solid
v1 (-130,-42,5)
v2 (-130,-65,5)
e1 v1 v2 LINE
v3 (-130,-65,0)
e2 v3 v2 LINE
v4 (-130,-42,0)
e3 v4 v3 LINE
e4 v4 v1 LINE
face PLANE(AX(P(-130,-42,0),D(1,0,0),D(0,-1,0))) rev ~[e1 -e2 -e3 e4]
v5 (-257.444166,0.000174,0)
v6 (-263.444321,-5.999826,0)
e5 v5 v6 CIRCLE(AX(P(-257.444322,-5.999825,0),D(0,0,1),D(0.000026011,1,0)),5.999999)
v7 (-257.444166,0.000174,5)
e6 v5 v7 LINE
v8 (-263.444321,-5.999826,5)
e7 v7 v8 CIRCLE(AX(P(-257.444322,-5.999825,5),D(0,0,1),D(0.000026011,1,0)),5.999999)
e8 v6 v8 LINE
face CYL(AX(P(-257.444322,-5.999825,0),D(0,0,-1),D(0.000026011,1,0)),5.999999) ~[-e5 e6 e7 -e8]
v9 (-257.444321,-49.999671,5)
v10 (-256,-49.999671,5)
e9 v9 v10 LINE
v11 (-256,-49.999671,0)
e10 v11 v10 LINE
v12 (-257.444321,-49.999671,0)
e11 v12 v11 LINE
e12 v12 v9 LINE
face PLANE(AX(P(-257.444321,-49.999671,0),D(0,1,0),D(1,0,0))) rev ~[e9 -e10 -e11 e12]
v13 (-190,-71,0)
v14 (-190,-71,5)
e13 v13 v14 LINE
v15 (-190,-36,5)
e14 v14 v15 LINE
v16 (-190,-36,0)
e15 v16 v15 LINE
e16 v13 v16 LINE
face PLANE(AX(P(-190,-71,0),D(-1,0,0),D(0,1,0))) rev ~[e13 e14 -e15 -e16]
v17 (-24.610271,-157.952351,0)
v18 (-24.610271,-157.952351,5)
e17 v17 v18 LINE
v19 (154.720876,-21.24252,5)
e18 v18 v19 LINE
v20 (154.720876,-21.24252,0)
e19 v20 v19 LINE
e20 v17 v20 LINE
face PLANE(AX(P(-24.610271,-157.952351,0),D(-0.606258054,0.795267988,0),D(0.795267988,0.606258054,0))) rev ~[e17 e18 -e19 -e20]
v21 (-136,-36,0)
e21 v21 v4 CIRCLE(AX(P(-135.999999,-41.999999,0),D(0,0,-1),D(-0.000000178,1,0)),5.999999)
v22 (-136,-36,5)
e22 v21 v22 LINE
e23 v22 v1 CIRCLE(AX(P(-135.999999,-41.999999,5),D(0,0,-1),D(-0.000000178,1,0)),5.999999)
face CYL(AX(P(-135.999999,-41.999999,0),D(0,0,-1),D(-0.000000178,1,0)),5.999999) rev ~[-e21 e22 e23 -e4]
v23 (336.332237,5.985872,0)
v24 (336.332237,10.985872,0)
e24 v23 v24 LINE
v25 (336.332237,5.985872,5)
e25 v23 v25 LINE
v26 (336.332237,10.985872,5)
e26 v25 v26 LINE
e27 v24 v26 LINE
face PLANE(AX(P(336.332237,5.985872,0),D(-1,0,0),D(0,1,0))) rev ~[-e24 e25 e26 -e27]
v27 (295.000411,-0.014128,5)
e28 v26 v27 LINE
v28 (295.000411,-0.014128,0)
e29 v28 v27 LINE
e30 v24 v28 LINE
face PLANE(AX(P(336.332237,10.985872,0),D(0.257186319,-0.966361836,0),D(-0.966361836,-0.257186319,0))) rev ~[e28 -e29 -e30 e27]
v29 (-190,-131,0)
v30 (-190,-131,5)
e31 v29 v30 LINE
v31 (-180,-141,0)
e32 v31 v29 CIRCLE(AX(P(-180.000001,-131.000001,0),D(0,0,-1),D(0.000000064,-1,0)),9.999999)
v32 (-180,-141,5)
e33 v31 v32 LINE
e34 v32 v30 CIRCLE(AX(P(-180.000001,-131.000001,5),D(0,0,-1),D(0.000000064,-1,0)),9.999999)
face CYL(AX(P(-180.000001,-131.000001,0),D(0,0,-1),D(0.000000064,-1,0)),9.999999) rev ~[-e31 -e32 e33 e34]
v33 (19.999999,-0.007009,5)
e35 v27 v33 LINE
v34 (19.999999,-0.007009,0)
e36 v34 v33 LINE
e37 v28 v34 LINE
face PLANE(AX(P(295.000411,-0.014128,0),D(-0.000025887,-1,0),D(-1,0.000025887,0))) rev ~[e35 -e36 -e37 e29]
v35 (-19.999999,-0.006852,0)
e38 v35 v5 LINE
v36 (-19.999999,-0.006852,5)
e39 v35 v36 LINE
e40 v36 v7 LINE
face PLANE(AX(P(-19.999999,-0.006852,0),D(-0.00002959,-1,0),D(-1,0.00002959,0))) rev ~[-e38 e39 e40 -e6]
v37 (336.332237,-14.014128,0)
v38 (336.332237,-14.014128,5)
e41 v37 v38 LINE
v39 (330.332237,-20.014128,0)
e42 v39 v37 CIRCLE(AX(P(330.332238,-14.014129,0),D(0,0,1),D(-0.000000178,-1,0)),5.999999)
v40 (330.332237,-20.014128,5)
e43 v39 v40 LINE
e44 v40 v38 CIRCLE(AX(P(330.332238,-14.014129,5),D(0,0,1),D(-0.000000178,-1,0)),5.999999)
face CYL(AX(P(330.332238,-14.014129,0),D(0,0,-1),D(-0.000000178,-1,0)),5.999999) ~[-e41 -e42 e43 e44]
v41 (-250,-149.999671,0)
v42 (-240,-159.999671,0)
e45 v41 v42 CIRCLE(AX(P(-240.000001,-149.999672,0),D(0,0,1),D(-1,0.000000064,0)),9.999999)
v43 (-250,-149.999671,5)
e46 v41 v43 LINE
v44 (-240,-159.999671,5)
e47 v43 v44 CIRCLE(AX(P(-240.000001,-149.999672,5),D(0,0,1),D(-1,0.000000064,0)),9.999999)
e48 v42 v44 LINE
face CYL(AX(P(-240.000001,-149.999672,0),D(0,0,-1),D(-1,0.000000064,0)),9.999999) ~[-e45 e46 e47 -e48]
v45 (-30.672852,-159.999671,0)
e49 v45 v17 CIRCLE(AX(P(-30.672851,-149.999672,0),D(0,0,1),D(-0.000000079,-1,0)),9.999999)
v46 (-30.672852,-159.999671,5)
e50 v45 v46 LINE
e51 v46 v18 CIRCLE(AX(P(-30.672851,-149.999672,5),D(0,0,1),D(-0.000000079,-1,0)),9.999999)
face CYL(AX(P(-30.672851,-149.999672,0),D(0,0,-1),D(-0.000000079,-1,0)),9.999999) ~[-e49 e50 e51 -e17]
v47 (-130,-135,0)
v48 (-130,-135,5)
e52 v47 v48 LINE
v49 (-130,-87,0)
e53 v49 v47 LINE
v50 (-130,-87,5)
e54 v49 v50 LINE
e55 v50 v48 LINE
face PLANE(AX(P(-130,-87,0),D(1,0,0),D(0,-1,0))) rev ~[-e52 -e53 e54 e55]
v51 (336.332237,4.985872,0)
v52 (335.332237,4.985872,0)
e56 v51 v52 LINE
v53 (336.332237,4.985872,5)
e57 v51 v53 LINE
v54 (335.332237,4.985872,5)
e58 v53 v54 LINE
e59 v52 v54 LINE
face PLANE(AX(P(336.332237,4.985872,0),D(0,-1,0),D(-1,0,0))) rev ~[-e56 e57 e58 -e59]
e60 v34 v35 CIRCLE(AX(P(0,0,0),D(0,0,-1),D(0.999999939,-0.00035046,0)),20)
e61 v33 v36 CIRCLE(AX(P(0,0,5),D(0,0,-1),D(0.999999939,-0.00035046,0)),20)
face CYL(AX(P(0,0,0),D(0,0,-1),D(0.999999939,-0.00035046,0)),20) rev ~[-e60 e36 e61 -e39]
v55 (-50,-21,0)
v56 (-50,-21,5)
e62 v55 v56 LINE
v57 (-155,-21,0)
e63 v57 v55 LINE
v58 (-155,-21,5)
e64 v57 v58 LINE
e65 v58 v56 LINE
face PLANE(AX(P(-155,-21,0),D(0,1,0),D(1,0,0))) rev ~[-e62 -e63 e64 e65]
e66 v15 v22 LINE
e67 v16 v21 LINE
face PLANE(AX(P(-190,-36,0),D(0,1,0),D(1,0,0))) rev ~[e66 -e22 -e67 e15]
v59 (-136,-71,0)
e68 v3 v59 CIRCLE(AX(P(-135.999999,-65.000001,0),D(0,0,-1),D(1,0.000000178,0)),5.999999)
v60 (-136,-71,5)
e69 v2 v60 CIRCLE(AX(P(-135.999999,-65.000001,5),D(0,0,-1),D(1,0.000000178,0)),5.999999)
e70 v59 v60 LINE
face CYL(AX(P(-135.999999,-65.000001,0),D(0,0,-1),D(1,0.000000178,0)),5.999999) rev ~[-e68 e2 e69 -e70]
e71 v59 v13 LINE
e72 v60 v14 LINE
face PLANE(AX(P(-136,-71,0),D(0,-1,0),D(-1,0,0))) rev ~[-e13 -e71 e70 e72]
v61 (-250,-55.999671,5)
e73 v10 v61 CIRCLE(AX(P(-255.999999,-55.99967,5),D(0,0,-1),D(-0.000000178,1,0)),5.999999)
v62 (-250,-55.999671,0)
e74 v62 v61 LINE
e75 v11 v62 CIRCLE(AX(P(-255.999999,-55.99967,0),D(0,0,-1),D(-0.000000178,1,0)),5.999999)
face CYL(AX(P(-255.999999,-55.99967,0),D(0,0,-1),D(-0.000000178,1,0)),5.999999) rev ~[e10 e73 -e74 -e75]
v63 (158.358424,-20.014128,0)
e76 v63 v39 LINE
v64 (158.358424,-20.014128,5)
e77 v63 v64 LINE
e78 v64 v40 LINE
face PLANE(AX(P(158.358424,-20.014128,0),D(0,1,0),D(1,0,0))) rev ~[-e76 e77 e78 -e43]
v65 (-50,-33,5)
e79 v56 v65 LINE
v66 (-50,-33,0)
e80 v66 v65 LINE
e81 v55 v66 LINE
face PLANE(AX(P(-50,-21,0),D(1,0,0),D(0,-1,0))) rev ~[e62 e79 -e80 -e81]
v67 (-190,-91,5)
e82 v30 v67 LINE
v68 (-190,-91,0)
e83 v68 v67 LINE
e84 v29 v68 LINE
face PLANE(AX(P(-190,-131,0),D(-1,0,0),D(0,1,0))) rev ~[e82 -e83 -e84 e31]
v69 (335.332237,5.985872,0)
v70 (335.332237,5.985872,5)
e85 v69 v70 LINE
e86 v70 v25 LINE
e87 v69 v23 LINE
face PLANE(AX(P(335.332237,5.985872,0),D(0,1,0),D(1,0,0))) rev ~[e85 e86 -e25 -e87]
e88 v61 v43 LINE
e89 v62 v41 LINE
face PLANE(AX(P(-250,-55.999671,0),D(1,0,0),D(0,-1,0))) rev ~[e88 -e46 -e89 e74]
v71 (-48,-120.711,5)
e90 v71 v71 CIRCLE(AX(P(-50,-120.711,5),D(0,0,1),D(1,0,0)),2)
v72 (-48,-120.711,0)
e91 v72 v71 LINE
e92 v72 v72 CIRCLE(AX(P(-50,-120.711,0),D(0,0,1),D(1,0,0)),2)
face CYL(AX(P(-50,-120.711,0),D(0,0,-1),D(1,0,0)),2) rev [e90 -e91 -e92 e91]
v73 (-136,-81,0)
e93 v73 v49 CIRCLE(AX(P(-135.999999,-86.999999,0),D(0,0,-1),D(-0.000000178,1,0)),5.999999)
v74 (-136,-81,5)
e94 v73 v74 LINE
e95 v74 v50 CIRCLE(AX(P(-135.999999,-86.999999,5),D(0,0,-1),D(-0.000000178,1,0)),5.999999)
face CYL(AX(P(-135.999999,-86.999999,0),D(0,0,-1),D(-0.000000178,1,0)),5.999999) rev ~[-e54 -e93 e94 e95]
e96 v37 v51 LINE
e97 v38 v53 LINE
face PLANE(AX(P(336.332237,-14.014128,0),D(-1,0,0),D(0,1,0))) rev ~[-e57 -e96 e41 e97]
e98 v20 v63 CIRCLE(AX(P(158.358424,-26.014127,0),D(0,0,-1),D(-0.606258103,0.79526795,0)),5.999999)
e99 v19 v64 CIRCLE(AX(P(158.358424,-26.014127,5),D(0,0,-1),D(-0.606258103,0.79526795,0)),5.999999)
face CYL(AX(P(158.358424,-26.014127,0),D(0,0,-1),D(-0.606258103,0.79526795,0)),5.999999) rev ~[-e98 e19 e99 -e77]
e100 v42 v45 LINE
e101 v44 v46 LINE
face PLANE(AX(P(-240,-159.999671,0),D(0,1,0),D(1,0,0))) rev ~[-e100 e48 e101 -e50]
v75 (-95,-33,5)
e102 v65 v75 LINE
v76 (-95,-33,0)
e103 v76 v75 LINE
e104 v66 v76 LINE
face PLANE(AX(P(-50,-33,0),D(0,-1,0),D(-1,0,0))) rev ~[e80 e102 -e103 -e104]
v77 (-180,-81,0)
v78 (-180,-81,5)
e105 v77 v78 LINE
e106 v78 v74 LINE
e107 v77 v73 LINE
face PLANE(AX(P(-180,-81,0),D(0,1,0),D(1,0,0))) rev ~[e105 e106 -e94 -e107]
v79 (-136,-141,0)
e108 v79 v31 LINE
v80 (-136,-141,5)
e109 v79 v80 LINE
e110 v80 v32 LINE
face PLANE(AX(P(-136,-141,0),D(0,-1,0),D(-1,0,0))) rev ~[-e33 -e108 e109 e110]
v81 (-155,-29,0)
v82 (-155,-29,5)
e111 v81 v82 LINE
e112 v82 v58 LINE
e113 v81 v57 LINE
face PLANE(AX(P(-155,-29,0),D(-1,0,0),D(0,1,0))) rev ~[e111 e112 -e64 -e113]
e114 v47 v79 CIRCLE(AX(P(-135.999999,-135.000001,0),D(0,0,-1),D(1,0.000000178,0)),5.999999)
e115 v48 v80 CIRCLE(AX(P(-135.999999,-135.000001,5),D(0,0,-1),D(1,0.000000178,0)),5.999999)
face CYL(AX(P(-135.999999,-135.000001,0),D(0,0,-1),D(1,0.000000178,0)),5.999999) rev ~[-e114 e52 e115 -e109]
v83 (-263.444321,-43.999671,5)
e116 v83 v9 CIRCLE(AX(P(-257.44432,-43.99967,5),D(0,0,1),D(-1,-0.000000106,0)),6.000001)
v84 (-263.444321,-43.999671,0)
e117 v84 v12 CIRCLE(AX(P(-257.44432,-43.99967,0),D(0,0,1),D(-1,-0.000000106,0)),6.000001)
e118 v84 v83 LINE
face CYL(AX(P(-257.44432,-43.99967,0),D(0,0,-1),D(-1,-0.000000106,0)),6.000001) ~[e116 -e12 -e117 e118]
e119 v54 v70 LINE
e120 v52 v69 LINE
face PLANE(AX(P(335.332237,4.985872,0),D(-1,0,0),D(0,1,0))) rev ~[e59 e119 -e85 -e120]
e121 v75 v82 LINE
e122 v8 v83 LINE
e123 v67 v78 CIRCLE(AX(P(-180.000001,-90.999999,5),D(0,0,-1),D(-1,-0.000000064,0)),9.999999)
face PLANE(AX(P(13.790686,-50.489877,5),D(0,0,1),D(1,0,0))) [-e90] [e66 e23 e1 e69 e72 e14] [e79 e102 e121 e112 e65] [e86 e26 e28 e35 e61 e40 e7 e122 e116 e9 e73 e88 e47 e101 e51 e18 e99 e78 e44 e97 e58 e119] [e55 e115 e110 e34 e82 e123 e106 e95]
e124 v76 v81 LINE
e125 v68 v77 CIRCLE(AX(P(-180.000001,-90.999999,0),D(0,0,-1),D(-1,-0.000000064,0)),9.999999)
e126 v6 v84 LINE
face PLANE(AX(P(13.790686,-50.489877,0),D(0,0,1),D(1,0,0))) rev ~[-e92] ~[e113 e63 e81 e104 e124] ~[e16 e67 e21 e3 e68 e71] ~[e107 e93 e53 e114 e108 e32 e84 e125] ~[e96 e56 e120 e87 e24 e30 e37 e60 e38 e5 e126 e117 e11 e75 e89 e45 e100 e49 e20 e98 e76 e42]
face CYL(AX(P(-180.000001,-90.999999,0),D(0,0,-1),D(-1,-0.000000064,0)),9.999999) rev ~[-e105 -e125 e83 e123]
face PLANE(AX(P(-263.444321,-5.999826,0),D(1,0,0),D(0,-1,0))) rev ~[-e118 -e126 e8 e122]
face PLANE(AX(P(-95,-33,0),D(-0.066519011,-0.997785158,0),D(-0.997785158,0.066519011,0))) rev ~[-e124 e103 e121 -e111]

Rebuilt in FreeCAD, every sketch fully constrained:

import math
import FreeCAD as App
import Part
import Sketcher

V = App.Vector
Q = App.Units.Quantity

doc = App.newDocument("Part")
body = doc.addObject("PartDesign::Body", "Body")

# Sketch on XY plane
sketch1 = body.newObject("Sketcher::SketchObject", "Sketch")
sketch1.AttachmentSupport = (doc.getObject("XY_Plane"), [""])
sketch1.MapMode = "FlatFace"
sketch1.addGeometry(Part.LineSegment(V(336.3, -14, 0), V(336.3, 5, 0)), False)
sketch1.addGeometry(Part.LineSegment(V(336.3, 5, 0), V(335.3, 5, 0)), False)
sketch1.addGeometry(Part.LineSegment(V(335.3, 5, 0), V(335.3, 6, 0)), False)
sketch1.addGeometry(Part.LineSegment(V(335.3, 6, 0), V(336.3, 6, 0)), False)
sketch1.addGeometry(Part.LineSegment(V(336.3, 6, 0), V(336.3, 11, 0)), False)
sketch1.addGeometry(Part.LineSegment(V(336.3, 11, 0), V(295, 0, 0)), False)
sketch1.addGeometry(Part.LineSegment(V(295, 0, 0), V(20, 0, 0)), False)
sketch1.addGeometry(Part.ArcOfCircle(Part.Circle(V(0, 0, 0), V(0, 0, 1), 20), math.radians(-180), math.radians(0)), False)
sketch1.addGeometry(Part.LineSegment(V(-20, 0, 0), V(-257.4, 0, 0)), False)
sketch1.addGeometry(Part.ArcOfCircle(Part.Circle(V(-257.4, -6, 0), V(0, 0, 1), 6), math.radians(90), math.radians(180)), False)
sketch1.addGeometry(Part.LineSegment(V(-263.4, -6, 0), V(-263.4, -44, 0)), False)
sketch1.addGeometry(Part.ArcOfCircle(Part.Circle(V(-257.4, -44, 0), V(0, 0, 1), 6), math.radians(-180), math.radians(-90)), False)
sketch1.addGeometry(Part.LineSegment(V(-257.4, -50, 0), V(-256, -50, 0)), False)
sketch1.addGeometry(Part.ArcOfCircle(Part.Circle(V(-256, -56, 0), V(0, 0, 1), 6), math.radians(0), math.radians(90)), False)
sketch1.addGeometry(Part.LineSegment(V(-250, -56, 0), V(-250, -150, 0)), False)
sketch1.addGeometry(Part.ArcOfCircle(Part.Circle(V(-240, -150, 0), V(0, 0, 1), 10), math.radians(180), math.radians(270)), False)
sketch1.addGeometry(Part.LineSegment(V(-240, -160, 0), V(-30.7, -160, 0)), False)
sketch1.addGeometry(Part.ArcOfCircle(Part.Circle(V(-30.7, -150, 0), V(0, 0, 1), 10), math.radians(-90), math.radians(-53)), False)
sketch1.addGeometry(Part.LineSegment(V(-24.6, -158, 0), V(154.7, -21.2, 0)), False)
sketch1.addGeometry(Part.ArcOfCircle(Part.Circle(V(158.4, -26, 0), V(0, 0, 1), 6), math.radians(90), math.radians(127)), False)
sketch1.addGeometry(Part.LineSegment(V(158.4, -20, 0), V(330.3, -20, 0)), False)
sketch1.addGeometry(Part.ArcOfCircle(Part.Circle(V(330.3, -14, 0), V(0, 0, 1), 6), math.radians(-90), math.radians(0)), False)
sketch1.addGeometry(Part.ArcOfCircle(Part.Circle(V(-180, -91, 0), V(0, 0, 1), 10), math.radians(90), math.radians(180)), False)
sketch1.addGeometry(Part.LineSegment(V(-180, -81, 0), V(-136, -81, 0)), False)
sketch1.addGeometry(Part.ArcOfCircle(Part.Circle(V(-136, -87, 0), V(0, 0, 1), 6), math.radians(0), math.radians(90)), False)
sketch1.addGeometry(Part.LineSegment(V(-130, -87, 0), V(-130, -135, 0)), False)
sketch1.addGeometry(Part.ArcOfCircle(Part.Circle(V(-136, -135, 0), V(0, 0, 1), 6), math.radians(-90), math.radians(0)), False)
sketch1.addGeometry(Part.LineSegment(V(-136, -141, 0), V(-180, -141, 0)), False)
sketch1.addGeometry(Part.ArcOfCircle(Part.Circle(V(-180, -131, 0), V(0, 0, 1), 10), math.radians(180), math.radians(270)), False)
sketch1.addGeometry(Part.LineSegment(V(-190, -131, 0), V(-190, -91, 0)), False)
sketch1.addGeometry(Part.Circle(V(-50, -120.7, 0), V(0, 0, 1), 2), False)
sketch1.addGeometry(Part.LineSegment(V(-190, -71, 0), V(-190, -36, 0)), False)
sketch1.addGeometry(Part.LineSegment(V(-190, -36, 0), V(-136, -36, 0)), False)
sketch1.addGeometry(Part.ArcOfCircle(Part.Circle(V(-136, -42, 0), V(0, 0, 1), 6), math.radians(0), math.radians(90)), False)
sketch1.addGeometry(Part.LineSegment(V(-130, -42, 0), V(-130, -65, 0)), False)
sketch1.addGeometry(Part.ArcOfCircle(Part.Circle(V(-136, -65, 0), V(0, 0, 1), 6), math.radians(-90), math.radians(0)), False)
sketch1.addGeometry(Part.LineSegment(V(-136, -71, 0), V(-190, -71, 0)), False)
sketch1.addGeometry(Part.LineSegment(V(-155, -29, 0), V(-155, -21, 0)), False)
sketch1.addGeometry(Part.LineSegment(V(-155, -21, 0), V(-50, -21, 0)), False)
sketch1.addGeometry(Part.LineSegment(V(-50, -21, 0), V(-50, -33, 0)), False)
sketch1.addGeometry(Part.LineSegment(V(-50, -33, 0), V(-95, -33, 0)), False)
sketch1.addGeometry(Part.LineSegment(V(-95, -33, 0), V(-155, -29, 0)), False)
sketch1.addConstraint(Sketcher.Constraint("Coincident", 0, 2, 1, 1))
sketch1.addConstraint(Sketcher.Constraint("Coincident", 1, 2, 2, 1))
sketch1.addConstraint(Sketcher.Constraint("Coincident", 2, 2, 3, 1))
sketch1.addConstraint(Sketcher.Constraint("Coincident", 3, 2, 4, 1))
sketch1.addConstraint(Sketcher.Constraint("Coincident", 4, 2, 5, 1))
sketch1.addConstraint(Sketcher.Constraint("Coincident", 5, 2, 6, 1))
sketch1.addConstraint(Sketcher.Constraint("Coincident", 6, 2, 7, 2))
sketch1.addConstraint(Sketcher.Constraint("Coincident", 7, 1, 8, 1))
sketch1.addConstraint(Sketcher.Constraint("Coincident", 8, 2, 9, 1))
sketch1.addConstraint(Sketcher.Constraint("Tangent", 9, 2, 10, 1))
sketch1.addConstraint(Sketcher.Constraint("Tangent", 10, 2, 11, 1))
sketch1.addConstraint(Sketcher.Constraint("Tangent", 11, 2, 12, 1))
sketch1.addConstraint(Sketcher.Constraint("Tangent", 12, 2, 13, 2))
sketch1.addConstraint(Sketcher.Constraint("Tangent", 13, 1, 14, 1))
sketch1.addConstraint(Sketcher.Constraint("Tangent", 14, 2, 15, 1))
sketch1.addConstraint(Sketcher.Constraint("Tangent", 15, 2, 16, 1))
sketch1.addConstraint(Sketcher.Constraint("Tangent", 16, 2, 17, 1))
sketch1.addConstraint(Sketcher.Constraint("Tangent", 17, 2, 18, 1))
sketch1.addConstraint(Sketcher.Constraint("Tangent", 18, 2, 19, 2))
sketch1.addConstraint(Sketcher.Constraint("Tangent", 19, 1, 20, 1))
sketch1.addConstraint(Sketcher.Constraint("Tangent", 20, 2, 21, 1))
sketch1.addConstraint(Sketcher.Constraint("Tangent", 21, 2, 0, 1))
sketch1.addConstraint(Sketcher.Constraint("Tangent", 22, 1, 23, 1))
sketch1.addConstraint(Sketcher.Constraint("Tangent", 23, 2, 24, 2))
sketch1.addConstraint(Sketcher.Constraint("Tangent", 24, 1, 25, 1))
sketch1.addConstraint(Sketcher.Constraint("Tangent", 25, 2, 26, 2))
sketch1.addConstraint(Sketcher.Constraint("Tangent", 26, 1, 27, 1))
sketch1.addConstraint(Sketcher.Constraint("Tangent", 27, 2, 28, 2))
sketch1.addConstraint(Sketcher.Constraint("Tangent", 28, 1, 29, 1))
sketch1.addConstraint(Sketcher.Constraint("Tangent", 29, 2, 22, 2))
sketch1.addConstraint(Sketcher.Constraint("Coincident", 31, 2, 32, 1))
sketch1.addConstraint(Sketcher.Constraint("Tangent", 32, 2, 33, 2))
sketch1.addConstraint(Sketcher.Constraint("Tangent", 33, 1, 34, 1))
sketch1.addConstraint(Sketcher.Constraint("Tangent", 34, 2, 35, 2))
sketch1.addConstraint(Sketcher.Constraint("Tangent", 35, 1, 36, 1))
sketch1.addConstraint(Sketcher.Constraint("Coincident", 36, 2, 31, 1))
sketch1.addConstraint(Sketcher.Constraint("Coincident", 37, 2, 38, 1))
sketch1.addConstraint(Sketcher.Constraint("Coincident", 38, 2, 39, 1))
sketch1.addConstraint(Sketcher.Constraint("Coincident", 39, 2, 40, 1))
sketch1.addConstraint(Sketcher.Constraint("Coincident", 40, 2, 41, 1))
sketch1.addConstraint(Sketcher.Constraint("Coincident", 41, 2, 37, 1))
sketch1.addConstraint(Sketcher.Constraint("Vertical", 0))
sketch1.addConstraint(Sketcher.Constraint("Horizontal", 1))
sketch1.addConstraint(Sketcher.Constraint("Vertical", 2))
sketch1.addConstraint(Sketcher.Constraint("Horizontal", 3))
sketch1.addConstraint(Sketcher.Constraint("Vertical", 4))
sketch1.addConstraint(Sketcher.Constraint("Vertical", 10))
sketch1.addConstraint(Sketcher.Constraint("Horizontal", 12))
sketch1.addConstraint(Sketcher.Constraint("Vertical", 14))
sketch1.addConstraint(Sketcher.Constraint("Horizontal", 16))
sketch1.addConstraint(Sketcher.Constraint("Horizontal", 20))
sketch1.addConstraint(Sketcher.Constraint("Horizontal", 23))
sketch1.addConstraint(Sketcher.Constraint("Vertical", 25))
sketch1.addConstraint(Sketcher.Constraint("Horizontal", 27))
sketch1.addConstraint(Sketcher.Constraint("Vertical", 29))
sketch1.addConstraint(Sketcher.Constraint("Vertical", 31))
sketch1.addConstraint(Sketcher.Constraint("Horizontal", 32))
sketch1.addConstraint(Sketcher.Constraint("Vertical", 34))
sketch1.addConstraint(Sketcher.Constraint("Horizontal", 36))
sketch1.addConstraint(Sketcher.Constraint("Vertical", 37))
sketch1.addConstraint(Sketcher.Constraint("Horizontal", 38))
sketch1.addConstraint(Sketcher.Constraint("Vertical", 39))
sketch1.addConstraint(Sketcher.Constraint("Horizontal", 40))
sketch1.addConstraint(Sketcher.Constraint("Coincident", 7, 3, -1, 1))
sketch1.addConstraint(Sketcher.Constraint("Equal", 9, 11))
sketch1.addConstraint(Sketcher.Constraint("Equal", 11, 13))
sketch1.addConstraint(Sketcher.Constraint("Equal", 15, 17))
sketch1.addConstraint(Sketcher.Constraint("Equal", 13, 19))
sketch1.addConstraint(Sketcher.Constraint("Equal", 19, 21))
sketch1.addConstraint(Sketcher.Constraint("Equal", 17, 22))
sketch1.addConstraint(Sketcher.Constraint("Equal", 21, 24))
sketch1.addConstraint(Sketcher.Constraint("Equal", 24, 26))
sketch1.addConstraint(Sketcher.Constraint("Equal", 22, 28))
sketch1.addConstraint(Sketcher.Constraint("Equal", 26, 33))
sketch1.addConstraint(Sketcher.Constraint("Equal", 33, 35))
sketch1.addConstraint(Sketcher.Constraint("Vertical", 26, 3, 33, 3))
sketch1.addConstraint(Sketcher.Constraint("Vertical", 0, 2, 3, 2))
sketch1.addConstraint(Sketcher.Constraint("Vertical", 29, 2, 31, 2))
sketch1.addConstraint(Sketcher.Constraint("Vertical", 30, 3, 38, 2))
sketch1.addConstraint(Sketcher.Constraint("Equal", 3, 2))
sketch1.addConstraint(Sketcher.Constraint("Diameter", 30, Q("4 mm")))
sketch1.addConstraint(Sketcher.Constraint("Radius", 7, Q("20 mm")))
sketch1.addConstraint(Sketcher.Constraint("Radius", 9, Q("5.999999 mm")))
sketch1.addConstraint(Sketcher.Constraint("Radius", 15, Q("9.999999 mm")))
sketch1.addConstraint(Sketcher.Constraint("DistanceX", 1, 2, 1, 1, Q("1 mm")))
sketch1.addConstraint(Sketcher.Constraint("DistanceX", 23, 1, 23, 2, Q("44 mm")))
sketch1.addConstraint(Sketcher.Constraint("DistanceX", 38, 1, 38, 2, Q("105 mm")))
sketch1.addConstraint(Sketcher.Constraint("DistanceX", 40, 2, 40, 1, Q("45 mm")))
sketch1.addConstraint(Sketcher.Constraint("DistanceY", 0, 1, 0, 2, Q("19 mm")))
sketch1.addConstraint(Sketcher.Constraint("DistanceY", 4, 1, 4, 2, Q("5 mm")))
sketch1.addConstraint(Sketcher.Constraint("DistanceY", 14, 2, 14, 1, Q("94 mm")))
sketch1.addConstraint(Sketcher.Constraint("DistanceY", 25, 2, 25, 1, Q("48 mm")))
sketch1.addConstraint(Sketcher.Constraint("DistanceY", 31, 1, 31, 2, Q("35 mm")))
sketch1.addConstraint(Sketcher.Constraint("DistanceY", 37, 1, 37, 2, Q("8 mm")))
sketch1.addConstraint(Sketcher.Constraint("DistanceY", 39, 2, 39, 1, Q("12 mm")))
sketch1.addConstraint(Sketcher.Constraint("DistanceX", 13, 3, -1, 1, Q("255.999999 mm")))
sketch1.addConstraint(Sketcher.Constraint("DistanceX", 22, 3, -1, 1, Q("180.000001 mm")))
sketch1.addConstraint(Sketcher.Constraint("DistanceY", 22, 3, -1, 1, Q("90.999999 mm")))
sketch1.addConstraint(Sketcher.Constraint("DistanceX", 30, 3, -1, 1, Q("50 mm")))
sketch1.addConstraint(Sketcher.Constraint("DistanceY", 33, 3, -1, 1, Q("41.999999 mm")))
sketch1.addConstraint(Sketcher.Constraint("DistanceY", 37, 2, -1, 1, Q("21 mm")))
sketch1.addConstraint(Sketcher.Constraint("DistanceY", 21, 3, 5, 2, Q("14.000001 mm")))
sketch1.addConstraint(Sketcher.Constraint("DistanceY", 30, 3, -1, 1, Q("120.711 mm")))
sketch1.addConstraint(Sketcher.Constraint("DistanceX", 12, 1, 12, 2, Q("1.444321 mm")))
sketch1.addConstraint(Sketcher.Constraint("DistanceX", 16, 1, 16, 2, Q("209.327148 mm")))
sketch1.addConstraint(Sketcher.Constraint("DistanceY", 19, 3, 9, 3, Q("20.014302 mm")))
sketch1.addConstraint(Sketcher.Constraint("Distance", 5, Q("42.770549 mm")))
sketch1.addConstraint(Sketcher.Constraint("DistanceX", 20, 1, 20, 2, Q("171.973813 mm")))
sketch1.addConstraint(Sketcher.Constraint("DistanceY", 10, 2, 10, 1, Q("37.999845 mm")))
sketch1.addConstraint(Sketcher.Constraint("DistanceY", 11, 3, -1, 1, Q("43.99967 mm")))
sketch1.addConstraint(Sketcher.Constraint("DistanceX", -1, 1, 21, 3, Q("330.332238 mm")))
sketch1.addConstraint(Sketcher.Constraint("DistanceY", 6, 2, -1, 1, Q("0.007009 mm")))
sketch1.addConstraint(Sketcher.Constraint("DistanceY", 35, 3, 7, 1, Q("64.993149 mm")))
sketch1.addConstraint(Sketcher.Constraint("Distance", 8, Q("237.444167 mm")))
pad1 = body.newObject("PartDesign::Pad", "Pad")
pad1.Profile = sketch1
pad1.Length = 5

doc.recompute()
